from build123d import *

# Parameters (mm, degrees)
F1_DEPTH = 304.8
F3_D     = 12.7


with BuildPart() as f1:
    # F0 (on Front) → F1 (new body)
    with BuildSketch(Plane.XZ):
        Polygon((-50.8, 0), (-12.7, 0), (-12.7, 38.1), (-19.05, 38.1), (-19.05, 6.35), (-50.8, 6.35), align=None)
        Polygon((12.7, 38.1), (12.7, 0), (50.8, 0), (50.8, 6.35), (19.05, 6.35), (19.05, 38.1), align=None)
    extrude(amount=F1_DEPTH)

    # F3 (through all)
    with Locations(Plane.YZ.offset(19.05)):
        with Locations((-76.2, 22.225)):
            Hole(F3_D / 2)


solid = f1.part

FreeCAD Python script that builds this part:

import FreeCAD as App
import Part
import Sketcher

V = App.Vector
Q = App.Units.Quantity


def add_polygon(sketch, points):
    """Adds a closed chain of lines whose ends are joined by coincident constraints."""
    first, n = sketch.GeometryCount, len(points)
    for a, b in zip(points, points[1:] + points[:1]):
        sketch.addGeometry(Part.LineSegment(App.Vector(*a, 0), App.Vector(*b, 0)), False)
    for i in range(n):
        sketch.addConstraint(Sketcher.Constraint("Coincident", first + i, 2, first + (i + 1) % n, 1))

doc = App.newDocument("Part")
params = doc.addObject("Spreadsheet::Sheet", "Params")
for row, (alias, value) in enumerate([
    ("sketch1_width", "1.5 in"),
    ("sketch1_width2", "0.25 in"),
    ("pad1_length", "12 in"),
    ("sketch2_diameter", "0.5 in"),
    ("hole_diameter", "0.5 in"),
], start=1):
    params.set(f"A{row}", alias)
    params.set(f"B{row}", "=" + value)
    params.setAlias(f"B{row}", alias)

body = doc.addObject("PartDesign::Body", "Body")
body.AllowCompound = True

sketch1 = body.newObject("Sketcher::SketchObject", "Sketch")
sketch1.AttachmentSupport = (doc.getObject("XZ_Plane"), [""])
sketch1.MapMode = "FlatFace"
add_polygon(sketch1, [(-51, 0), (-13, 0), (-13, 38), (-19, 38), (-19, 6), (-51, 6)])
add_polygon(sketch1, [(13, 38), (13, 0), (51, 0), (51, 6), (19, 6), (19, 38)])
sketch1.addConstraint([
    Sketcher.Constraint("Horizontal", 0),
    Sketcher.Constraint("Vertical", 1),
    Sketcher.Constraint("Horizontal", 2),
    Sketcher.Constraint("Vertical", 3),
    Sketcher.Constraint("Horizontal", 4),
    Sketcher.Constraint("Vertical", 5),
    Sketcher.Constraint("Vertical", 6),
    Sketcher.Constraint("Horizontal", 7),
    Sketcher.Constraint("Vertical", 8),
    Sketcher.Constraint("Horizontal", 9),
    Sketcher.Constraint("Vertical", 10),
    Sketcher.Constraint("Horizontal", 11),
    Sketcher.Constraint("Symmetric", 0, 2, 6, 2, -1, 1),
    Sketcher.Constraint("Symmetric", 5, 2, 7, 2, -2),
    Sketcher.Constraint("Symmetric", 3, 2, 9, 2, -2),
    Sketcher.Constraint("Horizontal", 2, 2, 10, 2),
    Sketcher.Constraint("Equal", 7, 1),
    Sketcher.Constraint("Equal", 9, 3),
    Sketcher.Constraint("DistanceX", 0, 1, 0, 2, Q("1.5 in")),
    Sketcher.Constraint("DistanceX", 4, 2, -1, 1, Q("2 in")),
    Sketcher.Constraint("DistanceX", 2, 2, 2, 1, Q("0.25 in")),
])
sketch1.setExpression("Constraints[30]", "Params.sketch1_width")
sketch1.setExpression("Constraints[32]", "Params.sketch1_width2")
pad1 = body.newObject("PartDesign::Pad", "Pad")
pad1.Profile = sketch1
pad1.setExpression("Length", "Params.pad1_length")

sketch2 = body.newObject("Sketcher::SketchObject", "Sketch001")
sketch2.AttachmentSupport = (doc.getObject("YZ_Plane"), [""])
sketch2.MapMode = "FlatFace"
sketch2.AttachmentOffset = App.Placement(V(0, 0, 0.75 * 25.4), App.Rotation())
sketch2.addGeometry(Part.Circle(V(-76, 22, 0), V(0, 0, 1), 6), False)
sketch2.addConstraint([
    Sketcher.Constraint("Diameter", 0, Q("0.5 in")),
    Sketcher.Constraint("DistanceX", 0, 3, -1, 1, Q("3 in")),
    Sketcher.Constraint("DistanceY", -1, 1, 0, 3, Q("0.875 in")),
])
sketch2.setExpression("Constraints[0]", "Params.sketch2_diameter")
doc.recompute()
hole = body.newObject("PartDesign::Hole", "Hole")
hole.Profile = sketch2
hole.ThreadType = "None"
hole.setExpression("Diameter", "Params.hole_diameter")
hole.DepthType = "ThroughAll"

doc.recompute()
